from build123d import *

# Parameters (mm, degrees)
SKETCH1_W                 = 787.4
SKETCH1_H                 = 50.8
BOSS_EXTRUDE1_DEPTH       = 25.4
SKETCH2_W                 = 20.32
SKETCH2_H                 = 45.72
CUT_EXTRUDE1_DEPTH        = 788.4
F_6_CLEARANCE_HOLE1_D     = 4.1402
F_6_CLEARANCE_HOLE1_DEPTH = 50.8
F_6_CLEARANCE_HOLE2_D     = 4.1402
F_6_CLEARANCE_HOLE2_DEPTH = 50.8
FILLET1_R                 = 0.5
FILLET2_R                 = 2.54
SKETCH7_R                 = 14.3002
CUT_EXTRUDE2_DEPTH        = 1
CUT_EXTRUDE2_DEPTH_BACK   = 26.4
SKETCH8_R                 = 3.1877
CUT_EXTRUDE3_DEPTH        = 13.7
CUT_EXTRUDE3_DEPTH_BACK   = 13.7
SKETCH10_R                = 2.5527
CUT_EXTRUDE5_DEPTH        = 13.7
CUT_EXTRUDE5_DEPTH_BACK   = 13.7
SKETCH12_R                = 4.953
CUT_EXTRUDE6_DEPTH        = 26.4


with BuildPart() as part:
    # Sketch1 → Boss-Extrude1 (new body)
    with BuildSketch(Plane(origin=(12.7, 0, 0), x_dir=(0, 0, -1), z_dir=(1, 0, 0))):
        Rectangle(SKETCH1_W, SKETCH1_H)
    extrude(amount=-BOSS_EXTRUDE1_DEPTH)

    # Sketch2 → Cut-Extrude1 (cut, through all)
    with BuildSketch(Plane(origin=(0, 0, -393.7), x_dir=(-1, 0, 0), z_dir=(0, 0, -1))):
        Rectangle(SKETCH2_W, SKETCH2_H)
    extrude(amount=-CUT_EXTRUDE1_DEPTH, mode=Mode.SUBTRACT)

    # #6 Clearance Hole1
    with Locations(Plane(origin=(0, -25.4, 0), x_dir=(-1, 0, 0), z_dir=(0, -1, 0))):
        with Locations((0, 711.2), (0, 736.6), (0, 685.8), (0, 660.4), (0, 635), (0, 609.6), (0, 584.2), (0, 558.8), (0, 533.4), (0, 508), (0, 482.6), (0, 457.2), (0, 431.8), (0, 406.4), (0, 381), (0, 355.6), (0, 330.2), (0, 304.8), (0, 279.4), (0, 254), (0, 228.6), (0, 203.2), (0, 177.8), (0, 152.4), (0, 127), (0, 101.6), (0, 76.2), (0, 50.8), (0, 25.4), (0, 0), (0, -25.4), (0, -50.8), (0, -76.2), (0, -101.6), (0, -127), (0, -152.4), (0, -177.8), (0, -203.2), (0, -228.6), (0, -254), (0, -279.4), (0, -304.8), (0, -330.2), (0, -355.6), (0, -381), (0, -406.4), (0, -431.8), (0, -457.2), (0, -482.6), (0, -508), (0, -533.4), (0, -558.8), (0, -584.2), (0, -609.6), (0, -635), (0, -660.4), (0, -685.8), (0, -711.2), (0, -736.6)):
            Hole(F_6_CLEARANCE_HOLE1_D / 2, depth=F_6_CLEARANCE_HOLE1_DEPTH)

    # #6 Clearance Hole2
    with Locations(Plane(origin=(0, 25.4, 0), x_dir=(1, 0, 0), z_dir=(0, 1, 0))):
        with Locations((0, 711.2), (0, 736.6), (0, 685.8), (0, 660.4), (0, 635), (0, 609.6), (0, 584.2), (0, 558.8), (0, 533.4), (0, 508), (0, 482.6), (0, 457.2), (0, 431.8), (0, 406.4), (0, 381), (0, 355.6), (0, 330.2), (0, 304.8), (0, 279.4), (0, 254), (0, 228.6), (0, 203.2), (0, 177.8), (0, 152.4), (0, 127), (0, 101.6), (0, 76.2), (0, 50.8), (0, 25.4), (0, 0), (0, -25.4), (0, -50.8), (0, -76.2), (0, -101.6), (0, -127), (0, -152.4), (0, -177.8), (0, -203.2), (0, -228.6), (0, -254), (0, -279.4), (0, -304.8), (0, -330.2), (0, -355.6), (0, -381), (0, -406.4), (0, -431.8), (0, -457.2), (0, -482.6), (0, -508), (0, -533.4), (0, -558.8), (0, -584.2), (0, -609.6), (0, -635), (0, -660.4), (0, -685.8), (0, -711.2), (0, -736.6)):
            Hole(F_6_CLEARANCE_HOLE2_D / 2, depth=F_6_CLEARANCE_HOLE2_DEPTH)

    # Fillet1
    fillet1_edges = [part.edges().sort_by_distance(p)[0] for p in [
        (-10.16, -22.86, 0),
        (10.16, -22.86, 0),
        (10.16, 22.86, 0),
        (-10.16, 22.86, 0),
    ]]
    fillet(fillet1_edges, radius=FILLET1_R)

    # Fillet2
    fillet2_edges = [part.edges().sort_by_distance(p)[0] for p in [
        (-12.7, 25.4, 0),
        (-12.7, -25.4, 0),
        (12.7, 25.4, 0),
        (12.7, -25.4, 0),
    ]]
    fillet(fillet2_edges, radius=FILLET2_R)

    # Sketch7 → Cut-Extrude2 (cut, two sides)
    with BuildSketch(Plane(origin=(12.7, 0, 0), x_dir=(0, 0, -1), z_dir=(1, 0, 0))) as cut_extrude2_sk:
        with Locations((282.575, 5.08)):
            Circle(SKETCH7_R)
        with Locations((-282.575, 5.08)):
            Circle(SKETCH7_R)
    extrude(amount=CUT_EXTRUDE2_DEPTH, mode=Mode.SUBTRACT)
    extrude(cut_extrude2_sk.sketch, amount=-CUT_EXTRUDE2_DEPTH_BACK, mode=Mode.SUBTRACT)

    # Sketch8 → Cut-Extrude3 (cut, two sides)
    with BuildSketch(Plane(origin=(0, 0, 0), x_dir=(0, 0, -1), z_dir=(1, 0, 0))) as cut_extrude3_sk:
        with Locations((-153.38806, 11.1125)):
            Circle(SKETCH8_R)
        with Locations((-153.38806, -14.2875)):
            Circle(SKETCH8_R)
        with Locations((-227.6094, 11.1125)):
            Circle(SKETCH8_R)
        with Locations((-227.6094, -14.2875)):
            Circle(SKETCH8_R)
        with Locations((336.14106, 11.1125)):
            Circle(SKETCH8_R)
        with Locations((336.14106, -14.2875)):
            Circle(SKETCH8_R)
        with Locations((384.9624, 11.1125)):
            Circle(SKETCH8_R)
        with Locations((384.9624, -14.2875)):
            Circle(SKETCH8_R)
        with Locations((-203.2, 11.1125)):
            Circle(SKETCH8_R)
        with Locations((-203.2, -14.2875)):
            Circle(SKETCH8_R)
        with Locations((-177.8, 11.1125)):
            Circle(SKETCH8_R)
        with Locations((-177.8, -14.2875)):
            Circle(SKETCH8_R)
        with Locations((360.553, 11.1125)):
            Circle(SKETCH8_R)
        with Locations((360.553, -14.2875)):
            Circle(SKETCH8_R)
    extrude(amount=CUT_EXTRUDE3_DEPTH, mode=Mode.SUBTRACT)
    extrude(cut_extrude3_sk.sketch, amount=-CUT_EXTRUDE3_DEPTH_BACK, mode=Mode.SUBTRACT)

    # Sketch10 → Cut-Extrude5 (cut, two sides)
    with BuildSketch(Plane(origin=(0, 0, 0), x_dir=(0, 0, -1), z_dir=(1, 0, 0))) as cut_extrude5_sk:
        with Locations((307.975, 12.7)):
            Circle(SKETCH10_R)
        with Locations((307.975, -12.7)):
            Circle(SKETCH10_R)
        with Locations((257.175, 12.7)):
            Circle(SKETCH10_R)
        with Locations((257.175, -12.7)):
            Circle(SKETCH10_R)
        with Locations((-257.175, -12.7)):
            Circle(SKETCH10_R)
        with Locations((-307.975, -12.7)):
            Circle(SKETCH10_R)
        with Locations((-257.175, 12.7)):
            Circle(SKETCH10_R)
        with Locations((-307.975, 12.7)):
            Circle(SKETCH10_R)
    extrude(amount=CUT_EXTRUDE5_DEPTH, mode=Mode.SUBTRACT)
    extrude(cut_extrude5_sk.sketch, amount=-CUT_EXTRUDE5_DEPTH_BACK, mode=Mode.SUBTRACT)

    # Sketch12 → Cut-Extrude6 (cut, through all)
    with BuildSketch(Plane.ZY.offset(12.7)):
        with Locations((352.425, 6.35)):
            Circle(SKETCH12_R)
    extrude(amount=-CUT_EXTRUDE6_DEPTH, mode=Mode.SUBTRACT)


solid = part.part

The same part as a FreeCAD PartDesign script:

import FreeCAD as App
import Part
import Sketcher

V = App.Vector
Q = App.Units.Quantity


def edges_at(feature, points):
    """Names of the edges that pass closest to the given points."""
    edges = feature.Shape.Edges
    near = lambda p: min(range(len(edges)), key=lambda i: edges[i].distToShape(Part.Vertex(*p))[0])
    return sorted({f"Edge{near(p) + 1}" for p in points})


def add_polygon(sketch, points):
    """Adds a closed chain of lines whose ends are joined by coincident constraints."""
    first, n = sketch.GeometryCount, len(points)
    for a, b in zip(points, points[1:] + points[:1]):
        sketch.addGeometry(Part.LineSegment(App.Vector(*a, 0), App.Vector(*b, 0)), False)
    for i in range(n):
        sketch.addConstraint(Sketcher.Constraint("Coincident", first + i, 2, first + (i + 1) % n, 1))

doc = App.newDocument("Part")
body = doc.addObject("PartDesign::Body", "Body")

# Sketch on YZ plane
sketch1 = body.newObject("Sketcher::SketchObject", "Sketch")
sketch1.AttachmentSupport = (doc.getObject("YZ_Plane"), [""])
sketch1.MapMode = "FlatFace"
sketch1.AttachmentOffset = App.Placement(V(0, 0, 0.5 * 25.4), App.Rotation())
add_polygon(sketch1, [(25, 394), (-25, 394), (-25, -394), (25, -394)])  # lines 0-3
sketch1.addConstraint([
    Sketcher.Constraint("Horizontal", 0),
    Sketcher.Constraint("Vertical", 1),
    Sketcher.Constraint("Horizontal", 2),
    Sketcher.Constraint("Vertical", 3),
    Sketcher.Constraint("Symmetric", 0, 2, 2, 2, -1, 1),
    Sketcher.Constraint("DistanceX", 0, 2, 0, 1, Q("2 in")),
    Sketcher.Constraint("DistanceY", 1, 2, 1, 1, Q("31 in")),
])
pad1 = body.newObject("PartDesign::Pad", "Pad")
pad1.Profile = sketch1
pad1.Length = Q("1 in")
pad1.Reversed = True

# Sketch on XY plane
sketch2 = body.newObject("Sketcher::SketchObject", "Sketch001")
sketch2.AttachmentSupport = (doc.getObject("XY_Plane"), [""])
sketch2.MapMode = "FlatFace"
sketch2.AttachmentOffset = App.Placement(V(0, 0, -15.5 * 25.4), App.Rotation())
add_polygon(sketch2, [(10, 23), (10, -23), (-10, -23), (-10, 23)])  # lines 0-3
sketch2.addConstraint([
    Sketcher.Constraint("Vertical", 0),
    Sketcher.Constraint("Horizontal", 1),
    Sketcher.Constraint("Vertical", 2),
    Sketcher.Constraint("Horizontal", 3),
    Sketcher.Constraint("Symmetric", 0, 2, 2, 2, -1, 1),
    Sketcher.Constraint("DistanceX", 1, 2, 1, 1, Q("0.8 in")),
    Sketcher.Constraint("DistanceY", 0, 2, 0, 1, Q("1.8 in")),
])
pocket1 = body.newObject("PartDesign::Pocket", "Pocket")
pocket1.Profile = sketch2
pocket1.Type = "ThroughAll"
pocket1.Reversed = True

# Sketch on XZ plane
sketch3 = body.newObject("Sketcher::SketchObject", "Sketch002")
sketch3.AttachmentSupport = (doc.getObject("XZ_Plane"), [""])
sketch3.MapMode = "FlatFace"
sketch3.AttachmentOffset = App.Placement(V(0, 0, 1 * 25.4), App.Rotation())
sketch3.addGeometry([
    Part.Circle(V(0, -711.2, 0), V(0, 0, 1), 2.1),  # 0
    Part.Circle(V(0, -736.6, 0), V(0, 0, 1), 2.1),  # 1
    Part.Circle(V(0, -685.8, 0), V(0, 0, 1), 2.1),  # 2
    Part.Circle(V(0, -660.4, 0), V(0, 0, 1), 2.1),  # 3
    Part.Circle(V(0, -635, 0), V(0, 0, 1), 2.1),  # 4
    Part.Circle(V(0, -609.6, 0), V(0, 0, 1), 2.1),  # 5
    Part.Circle(V(0, -584.2, 0), V(0, 0, 1), 2.1),  # 6
    Part.Circle(V(0, -558.8, 0), V(0, 0, 1), 2.1),  # 7
    Part.Circle(V(0, -533.4, 0), V(0, 0, 1), 2.1),  # 8
    Part.Circle(V(0, -508, 0), V(0, 0, 1), 2.1),  # 9
    Part.Circle(V(0, -482.6, 0), V(0, 0, 1), 2.1),  # 10
    Part.Circle(V(0, -457.2, 0), V(0, 0, 1), 2.1),  # 11
    Part.Circle(V(0, -431.8, 0), V(0, 0, 1), 2.1),  # 12
    Part.Circle(V(0, -406.4, 0), V(0, 0, 1), 2.1),  # 13
    Part.Circle(V(0, -381, 0), V(0, 0, 1), 2.1),  # 14
    Part.Circle(V(0, -355.6, 0), V(0, 0, 1), 2.1),  # 15
    Part.Circle(V(0, -330.2, 0), V(0, 0, 1), 2.1),  # 16
    Part.Circle(V(0, -304.8, 0), V(0, 0, 1), 2.1),  # 17
    Part.Circle(V(0, -279.4, 0), V(0, 0, 1), 2.1),  # 18
    Part.Circle(V(0, -254, 0), V(0, 0, 1), 2.1),  # 19
    Part.Circle(V(0, -228.6, 0), V(0, 0, 1), 2.1),  # 20
    Part.Circle(V(0, -203.2, 0), V(0, 0, 1), 2.1),  # 21
    Part.Circle(V(0, -177.8, 0), V(0, 0, 1), 2.1),  # 22
    Part.Circle(V(0, -152.4, 0), V(0, 0, 1), 2.1),  # 23
    Part.Circle(V(0, -127, 0), V(0, 0, 1), 2.1),  # 24
    Part.Circle(V(0, -101.6, 0), V(0, 0, 1), 2.1),  # 25
    Part.Circle(V(0, -76.2, 0), V(0, 0, 1), 2.1),  # 26
    Part.Circle(V(0, -50.8, 0), V(0, 0, 1), 2.1),  # 27
    Part.Circle(V(0, -25.4, 0), V(0, 0, 1), 2.1),  # 28
    Part.Circle(V(0, 0, 0), V(0, 0, 1), 2.1),  # 29
    Part.Circle(V(0, 25.4, 0), V(0, 0, 1), 2.1),  # 30
    Part.Circle(V(0, 50.8, 0), V(0, 0, 1), 2.1),  # 31
    Part.Circle(V(0, 76.2, 0), V(0, 0, 1), 2.1),  # 32
    Part.Circle(V(0, 101.6, 0), V(0, 0, 1), 2.1),  # 33
    Part.Circle(V(0, 127, 0), V(0, 0, 1), 2.1),  # 34
    Part.Circle(V(0, 152.4, 0), V(0, 0, 1), 2.1),  # 35
    Part.Circle(V(0, 177.8, 0), V(0, 0, 1), 2.1),  # 36
    Part.Circle(V(0, 203.2, 0), V(0, 0, 1), 2.1),  # 37
    Part.Circle(V(0, 228.6, 0), V(0, 0, 1), 2.1),  # 38
    Part.Circle(V(0, 254, 0), V(0, 0, 1), 2.1),  # 39
    Part.Circle(V(0, 279.4, 0), V(0, 0, 1), 2.1),  # 40
    Part.Circle(V(0, 304.8, 0), V(0, 0, 1), 2.1),  # 41
    Part.Circle(V(0, 330.2, 0), V(0, 0, 1), 2.1),  # 42
    Part.Circle(V(0, 355.6, 0), V(0, 0, 1), 2.1),  # 43
    Part.Circle(V(0, 381, 0), V(0, 0, 1), 2.1),  # 44
    Part.Circle(V(0, 406.4, 0), V(0, 0, 1), 2.1),  # 45
    Part.Circle(V(0, 431.8, 0), V(0, 0, 1), 2.1),  # 46
    Part.Circle(V(0, 457.2, 0), V(0, 0, 1), 2.1),  # 47
    Part.Circle(V(0, 482.6, 0), V(0, 0, 1), 2.1),  # 48
    Part.Circle(V(0, 508, 0), V(0, 0, 1), 2.1),  # 49
    Part.Circle(V(0, 533.4, 0), V(0, 0, 1), 2.1),  # 50
    Part.Circle(V(0, 558.8, 0), V(0, 0, 1), 2.1),  # 51
    Part.Circle(V(0, 584.2, 0), V(0, 0, 1), 2.1),  # 52
    Part.Circle(V(0, 609.6, 0), V(0, 0, 1), 2.1),  # 53
    Part.Circle(V(0, 635, 0), V(0, 0, 1), 2.1),  # 54
    Part.Circle(V(0, 660.4, 0), V(0, 0, 1), 2.1),  # 55
    Part.Circle(V(0, 685.8, 0), V(0, 0, 1), 2.1),  # 56
    Part.Circle(V(0, 711.2, 0), V(0, 0, 1), 2.1),  # 57
    Part.Circle(V(0, 736.6, 0), V(0, 0, 1), 2.1),  # 58
], False)
sketch3.addConstraint([
    Sketcher.Constraint("Coincident", 29, 3, -1, 1),
    Sketcher.Constraint("Equal", 0, 1),
    Sketcher.Constraint("Equal", 1, 2),
    Sketcher.Constraint("Equal", 2, 3),
    Sketcher.Constraint("Equal", 3, 4),
    Sketcher.Constraint("Equal", 4, 5),
    Sketcher.Constraint("Equal", 5, 6),
    Sketcher.Constraint("Equal", 6, 7),
    Sketcher.Constraint("Equal", 7, 8),
    Sketcher.Constraint("Equal", 8, 9),
    Sketcher.Constraint("Equal", 9, 10),
    Sketcher.Constraint("Equal", 10, 11),
    Sketcher.Constraint("Equal", 11, 12),
    Sketcher.Constraint("Equal", 12, 13),
    Sketcher.Constraint("Equal", 13, 14),
    Sketcher.Constraint("Equal", 14, 15),
    Sketcher.Constraint("Equal", 15, 16),
    Sketcher.Constraint("Equal", 16, 17),
    Sketcher.Constraint("Equal", 17, 18),
    Sketcher.Constraint("Equal", 18, 19),
    Sketcher.Constraint("Equal", 19, 20),
    Sketcher.Constraint("Equal", 20, 21),
    Sketcher.Constraint("Equal", 21, 22),
    Sketcher.Constraint("Equal", 22, 23),
    Sketcher.Constraint("Equal", 23, 24),
    Sketcher.Constraint("Equal", 24, 25),
    Sketcher.Constraint("Equal", 25, 26),
    Sketcher.Constraint("Equal", 26, 27),
    Sketcher.Constraint("Equal", 27, 28),
    Sketcher.Constraint("Equal", 28, 29),
    Sketcher.Constraint("Equal", 29, 30),
    Sketcher.Constraint("Equal", 30, 31),
    Sketcher.Constraint("Equal", 31, 32),
    Sketcher.Constraint("Equal", 32, 33),
    Sketcher.Constraint("Equal", 33, 34),
    Sketcher.Constraint("Equal", 34, 35),
    Sketcher.Constraint("Equal", 35, 36),
    Sketcher.Constraint("Equal", 36, 37),
    Sketcher.Constraint("Equal", 37, 38),
    Sketcher.Constraint("Equal", 38, 39),
    Sketcher.Constraint("Equal", 39, 40),
    Sketcher.Constraint("Equal", 40, 41),
    Sketcher.Constraint("Equal", 41, 42),
    Sketcher.Constraint("Equal", 42, 43),
    Sketcher.Constraint("Equal", 43, 44),
    Sketcher.Constraint("Equal", 44, 45),
    Sketcher.Constraint("Equal", 45, 46),
    Sketcher.Constraint("Equal", 46, 47),
    Sketcher.Constraint("Equal", 47, 48),
    Sketcher.Constraint("Equal", 48, 49),
    Sketcher.Constraint("Equal", 49, 50),
    Sketcher.Constraint("Equal", 50, 51),
    Sketcher.Constraint("Equal", 51, 52),
    Sketcher.Constraint("Equal", 52, 53),
    Sketcher.Constraint("Equal", 53, 54),
    Sketcher.Constraint("Equal", 54, 55),
    Sketcher.Constraint("Equal", 55, 56),
    Sketcher.Constraint("Equal", 56, 57),
    Sketcher.Constraint("Equal", 57, 58),
    Sketcher.Constraint("Symmetric", 28, 3, 30, 3, -1, 1),
    Sketcher.Constraint("Symmetric", 27, 3, 31, 3, -1, 1),
    Sketcher.Constraint("Symmetric", 26, 3, 32, 3, -1, 1),
    Sketcher.Constraint("Symmetric", 25, 3, 33, 3, -1, 1),
    Sketcher.Constraint("Symmetric", 24, 3, 34, 3, -1, 1),
    Sketcher.Constraint("Symmetric", 23, 3, 35, 3, -1, 1),
    Sketcher.Constraint("Symmetric", 22, 3, 36, 3, -1, 1),
    Sketcher.Constraint("Symmetric", 21, 3, 37, 3, -1, 1),
    Sketcher.Constraint("Symmetric", 20, 3, 38, 3, -1, 1),
    Sketcher.Constraint("Symmetric", 19, 3, 39, 3, -1, 1),
    Sketcher.Constraint("Symmetric", 18, 3, 40, 3, -1, 1),
    Sketcher.Constraint("Symmetric", 17, 3, 41, 3, -1, 1),
    Sketcher.Constraint("Symmetric", 16, 3, 42, 3, -1, 1),
    Sketcher.Constraint("Symmetric", 15, 3, 43, 3, -1, 1),
    Sketcher.Constraint("Symmetric", 14, 3, 44, 3, -1, 1),
    Sketcher.Constraint("Symmetric", 13, 3, 45, 3, -1, 1),
    Sketcher.Constraint("Symmetric", 12, 3, 46, 3, -1, 1),
    Sketcher.Constraint("Symmetric", 11, 3, 47, 3, -1, 1),
    Sketcher.Constraint("Symmetric", 10, 3, 48, 3, -1, 1),
    Sketcher.Constraint("Symmetric", 9, 3, 49, 3, -1, 1),
    Sketcher.Constraint("Symmetric", 8, 3, 50, 3, -1, 1),
    Sketcher.Constraint("Symmetric", 7, 3, 51, 3, -1, 1),
    Sketcher.Constraint("Symmetric", 6, 3, 52, 3, -1, 1),
    Sketcher.Constraint("Symmetric", 5, 3, 53, 3, -1, 1),
    Sketcher.Constraint("Symmetric", 4, 3, 54, 3, -1, 1),
    Sketcher.Constraint("Symmetric", 3, 3, 55, 3, -1, 1),
    Sketcher.Constraint("Symmetric", 2, 3, 56, 3, -1, 1),
    Sketcher.Constraint("Symmetric", 0, 3, 57, 3, -1, 1),
    Sketcher.Constraint("Symmetric", 1, 3, 58, 3, -1, 1),
    Sketcher.Constraint("PointOnObject", 0, 3, -2),
    Sketcher.Constraint("PointOnObject", 1, 3, -2),
    Sketcher.Constraint("PointOnObject", 2, 3, -2),
    Sketcher.Constraint("PointOnObject", 3, 3, -2),
    Sketcher.Constraint("PointOnObject", 4, 3, -2),
    Sketcher.Constraint("PointOnObject", 5, 3, -2),
    Sketcher.Constraint("PointOnObject", 6, 3, -2),
    Sketcher.Constraint("PointOnObject", 7, 3, -2),
    Sketcher.Constraint("PointOnObject", 8, 3, -2),
    Sketcher.Constraint("PointOnObject", 9, 3, -2),
    Sketcher.Constraint("PointOnObject", 10, 3, -2),
    Sketcher.Constraint("PointOnObject", 11, 3, -2),
    Sketcher.Constraint("PointOnObject", 12, 3, -2),
    Sketcher.Constraint("PointOnObject", 13, 3, -2),
    Sketcher.Constraint("PointOnObject", 14, 3, -2),
    Sketcher.Constraint("PointOnObject", 15, 3, -2),
    Sketcher.Constraint("PointOnObject", 16, 3, -2),
    Sketcher.Constraint("PointOnObject", 17, 3, -2),
    Sketcher.Constraint("PointOnObject", 18, 3, -2),
    Sketcher.Constraint("PointOnObject", 19, 3, -2),
    Sketcher.Constraint("PointOnObject", 20, 3, -2),
    Sketcher.Constraint("PointOnObject", 21, 3, -2),
    Sketcher.Constraint("PointOnObject", 22, 3, -2),
    Sketcher.Constraint("PointOnObject", 23, 3, -2),
    Sketcher.Constraint("PointOnObject", 24, 3, -2),
    Sketcher.Constraint("PointOnObject", 25, 3, -2),
    Sketcher.Constraint("PointOnObject", 26, 3, -2),
    Sketcher.Constraint("PointOnObject", 27, 3, -2),
    Sketcher.Constraint("PointOnObject", 28, 3, -2),
    Sketcher.Constraint("Diameter", 0, Q("0.163 in")),
    Sketcher.Constraint("DistanceY", 0, 3, -1, 1, Q("28 in")),
    Sketcher.Constraint("DistanceY", 1, 3, -1, 1, Q("29 in")),
    Sketcher.Constraint("DistanceY", 2, 3, -1, 1, Q("27 in")),
    Sketcher.Constraint("DistanceY", 3, 3, -1, 1, Q("26 in")),
    Sketcher.Constraint("DistanceY", 4, 3, -1, 1, Q("25 in")),
    Sketcher.Constraint("DistanceY", 5, 3, -1, 1, Q("24 in")),
    Sketcher.Constraint("DistanceY", 6, 3, -1, 1, Q("23 in")),
    Sketcher.Constraint("DistanceY", 7, 3, -1, 1, Q("22 in")),
    Sketcher.Constraint("DistanceY", 8, 3, -1, 1, Q("21 in")),
    Sketcher.Constraint("DistanceY", 9, 3, -1, 1, Q("20 in")),
    Sketcher.Constraint("DistanceY", 10, 3, -1, 1, Q("19 in")),
    Sketcher.Constraint("DistanceY", 11, 3, -1, 1, Q("18 in")),
    Sketcher.Constraint("DistanceY", 12, 3, -1, 1, Q("17 in")),
    Sketcher.Constraint("DistanceY", 13, 3, -1, 1, Q("16 in")),
    Sketcher.Constraint("DistanceY", 14, 3, -1, 1, Q("15 in")),
    Sketcher.Constraint("DistanceY", 15, 3, -1, 1, Q("14 in")),
    Sketcher.Constraint("DistanceY", 16, 3, -1, 1, Q("13 in")),
    Sketcher.Constraint("DistanceY", 17, 3, -1, 1, Q("12 in")),
    Sketcher.Constraint("DistanceY", 18, 3, -1, 1, Q("11 in")),
    Sketcher.Constraint("DistanceY", 19, 3, -1, 1, Q("10 in")),
    Sketcher.Constraint("DistanceY", 20, 3, -1, 1, Q("9 in")),
    Sketcher.Constraint("DistanceY", 21, 3, -1, 1, Q("8 in")),
    Sketcher.Constraint("DistanceY", 22, 3, -1, 1, Q("7 in")),
    Sketcher.Constraint("DistanceY", 23, 3, -1, 1, Q("6 in")),
    Sketcher.Constraint("DistanceY", 24, 3, -1, 1, Q("5 in")),
    Sketcher.Constraint("DistanceY", 25, 3, -1, 1, Q("4 in")),
    Sketcher.Constraint("DistanceY", 26, 3, -1, 1, Q("3 in")),
    Sketcher.Constraint("DistanceY", 27, 3, -1, 1, Q("2 in")),
    Sketcher.Constraint("DistanceY", 28, 3, -1, 1, Q("1 in")),
])
doc.recompute()
hole = body.newObject("PartDesign::Hole", "Hole")
hole.Profile = sketch3
hole.ThreadType = "None"
hole.Diameter = Q("0.163 in")
hole.DepthType = "Dimension"
hole.Depth = Q("2 in")
hole.DrillPoint = "Flat"

# Sketch on XZ plane
sketch4 = body.newObject("Sketcher::SketchObject", "Sketch003")
sketch4.AttachmentSupport = (doc.getObject("XZ_Plane"), [""])
sketch4.MapMode = "FlatFace"
sketch4.AttachmentOffset = App.Placement(V(0, 0, -1 * 25.4), App.Rotation())
sketch4.addGeometry([
    Part.Circle(V(0, -711.2, 0), V(0, 0, 1), 2.1),  # 0
    Part.Circle(V(0, -736.6, 0), V(0, 0, 1), 2.1),  # 1
    Part.Circle(V(0, -685.8, 0), V(0, 0, 1), 2.1),  # 2
    Part.Circle(V(0, -660.4, 0), V(0, 0, 1), 2.1),  # 3
    Part.Circle(V(0, -635, 0), V(0, 0, 1), 2.1),  # 4
    Part.Circle(V(0, -609.6, 0), V(0, 0, 1), 2.1),  # 5
    Part.Circle(V(0, -584.2, 0), V(0, 0, 1), 2.1),  # 6
    Part.Circle(V(0, -558.8, 0), V(0, 0, 1), 2.1),  # 7
    Part.Circle(V(0, -533.4, 0), V(0, 0, 1), 2.1),  # 8
    Part.Circle(V(0, -508, 0), V(0, 0, 1), 2.1),  # 9
    Part.Circle(V(0, -482.6, 0), V(0, 0, 1), 2.1),  # 10
    Part.Circle(V(0, -457.2, 0), V(0, 0, 1), 2.1),  # 11
    Part.Circle(V(0, -431.8, 0), V(0, 0, 1), 2.1),  # 12
    Part.Circle(V(0, -406.4, 0), V(0, 0, 1), 2.1),  # 13
    Part.Circle(V(0, -381, 0), V(0, 0, 1), 2.1),  # 14
    Part.Circle(V(0, -355.6, 0), V(0, 0, 1), 2.1),  # 15
    Part.Circle(V(0, -330.2, 0), V(0, 0, 1), 2.1),  # 16
    Part.Circle(V(0, -304.8, 0), V(0, 0, 1), 2.1),  # 17
    Part.Circle(V(0, -279.4, 0), V(0, 0, 1), 2.1),  # 18
    Part.Circle(V(0, -254, 0), V(0, 0, 1), 2.1),  # 19
    Part.Circle(V(0, -228.6, 0), V(0, 0, 1), 2.1),  # 20
    Part.Circle(V(0, -203.2, 0), V(0, 0, 1), 2.1),  # 21
    Part.Circle(V(0, -177.8, 0), V(0, 0, 1), 2.1),  # 22
    Part.Circle(V(0, -152.4, 0), V(0, 0, 1), 2.1),  # 23
    Part.Circle(V(0, -127, 0), V(0, 0, 1), 2.1),  # 24
    Part.Circle(V(0, -101.6, 0), V(0, 0, 1), 2.1),  # 25
    Part.Circle(V(0, -76.2, 0), V(0, 0, 1), 2.1),  # 26
    Part.Circle(V(0, -50.8, 0), V(0, 0, 1), 2.1),  # 27
    Part.Circle(V(0, -25.4, 0), V(0, 0, 1), 2.1),  # 28
    Part.Circle(V(0, 0, 0), V(0, 0, 1), 2.1),  # 29
    Part.Circle(V(0, 25.4, 0), V(0, 0, 1), 2.1),  # 30
    Part.Circle(V(0, 50.8, 0), V(0, 0, 1), 2.1),  # 31
    Part.Circle(V(0, 76.2, 0), V(0, 0, 1), 2.1),  # 32
    Part.Circle(V(0, 101.6, 0), V(0, 0, 1), 2.1),  # 33
    Part.Circle(V(0, 127, 0), V(0, 0, 1), 2.1),  # 34
    Part.Circle(V(0, 152.4, 0), V(0, 0, 1), 2.1),  # 35
    Part.Circle(V(0, 177.8, 0), V(0, 0, 1), 2.1),  # 36
    Part.Circle(V(0, 203.2, 0), V(0, 0, 1), 2.1),  # 37
    Part.Circle(V(0, 228.6, 0), V(0, 0, 1), 2.1),  # 38
    Part.Circle(V(0, 254, 0), V(0, 0, 1), 2.1),  # 39
    Part.Circle(V(0, 279.4, 0), V(0, 0, 1), 2.1),  # 40
    Part.Circle(V(0, 304.8, 0), V(0, 0, 1), 2.1),  # 41
    Part.Circle(V(0, 330.2, 0), V(0, 0, 1), 2.1),  # 42
    Part.Circle(V(0, 355.6, 0), V(0, 0, 1), 2.1),  # 43
    Part.Circle(V(0, 381, 0), V(0, 0, 1), 2.1),  # 44
    Part.Circle(V(0, 406.4, 0), V(0, 0, 1), 2.1),  # 45
    Part.Circle(V(0, 431.8, 0), V(0, 0, 1), 2.1),  # 46
    Part.Circle(V(0, 457.2, 0), V(0, 0, 1), 2.1),  # 47
    Part.Circle(V(0, 482.6, 0), V(0, 0, 1), 2.1),  # 48
    Part.Circle(V(0, 508, 0), V(0, 0, 1), 2.1),  # 49
    Part.Circle(V(0, 533.4, 0), V(0, 0, 1), 2.1),  # 50
    Part.Circle(V(0, 558.8, 0), V(0, 0, 1), 2.1),  # 51
    Part.Circle(V(0, 584.2, 0), V(0, 0, 1), 2.1),  # 52
    Part.Circle(V(0, 609.6, 0), V(0, 0, 1), 2.1),  # 53
    Part.Circle(V(0, 635, 0), V(0, 0, 1), 2.1),  # 54
    Part.Circle(V(0, 660.4, 0), V(0, 0, 1), 2.1),  # 55
    Part.Circle(V(0, 685.8, 0), V(0, 0, 1), 2.1),  # 56
    Part.Circle(V(0, 711.2, 0), V(0, 0, 1), 2.1),  # 57
    Part.Circle(V(0, 736.6, 0), V(0, 0, 1), 2.1),  # 58
], False)
sketch4.addConstraint([
    Sketcher.Constraint("Coincident", 29, 3, -1, 1),
    Sketcher.Constraint("Equal", 0, 1),
    Sketcher.Constraint("Equal", 1, 2),
    Sketcher.Constraint("Equal", 2, 3),
    Sketcher.Constraint("Equal", 3, 4),
    Sketcher.Constraint("Equal", 4, 5),
    Sketcher.Constraint("Equal", 5, 6),
    Sketcher.Constraint("Equal", 6, 7),
    Sketcher.Constraint("Equal", 7, 8),
    Sketcher.Constraint("Equal", 8, 9),
    Sketcher.Constraint("Equal", 9, 10),
    Sketcher.Constraint("Equal", 10, 11),
    Sketcher.Constraint("Equal", 11, 12),
    Sketcher.Constraint("Equal", 12, 13),
    Sketcher.Constraint("Equal", 13, 14),
    Sketcher.Constraint("Equal", 14, 15),
    Sketcher.Constraint("Equal", 15, 16),
    Sketcher.Constraint("Equal", 16, 17),
    Sketcher.Constraint("Equal", 17, 18),
    Sketcher.Constraint("Equal", 18, 19),
    Sketcher.Constraint("Equal", 19, 20),
    Sketcher.Constraint("Equal", 20, 21),
    Sketcher.Constraint("Equal", 21, 22),
    Sketcher.Constraint("Equal", 22, 23),
    Sketcher.Constraint("Equal", 23, 24),
    Sketcher.Constraint("Equal", 24, 25),
    Sketcher.Constraint("Equal", 25, 26),
    Sketcher.Constraint("Equal", 26, 27),
    Sketcher.Constraint("Equal", 27, 28),
    Sketcher.Constraint("Equal", 28, 29),
    Sketcher.Constraint("Equal", 29, 30),
    Sketcher.Constraint("Equal", 30, 31),
    Sketcher.Constraint("Equal", 31, 32),
    Sketcher.Constraint("Equal", 32, 33),
    Sketcher.Constraint("Equal", 33, 34),
    Sketcher.Constraint("Equal", 34, 35),
    Sketcher.Constraint("Equal", 35, 36),
    Sketcher.Constraint("Equal", 36, 37),
    Sketcher.Constraint("Equal", 37, 38),
    Sketcher.Constraint("Equal", 38, 39),
    Sketcher.Constraint("Equal", 39, 40),
    Sketcher.Constraint("Equal", 40, 41),
    Sketcher.Constraint("Equal", 41, 42),
    Sketcher.Constraint("Equal", 42, 43),
    Sketcher.Constraint("Equal", 43, 44),
    Sketcher.Constraint("Equal", 44, 45),
    Sketcher.Constraint("Equal", 45, 46),
    Sketcher.Constraint("Equal", 46, 47),
    Sketcher.Constraint("Equal", 47, 48),
    Sketcher.Constraint("Equal", 48, 49),
    Sketcher.Constraint("Equal", 49, 50),
    Sketcher.Constraint("Equal", 50, 51),
    Sketcher.Constraint("Equal", 51, 52),
    Sketcher.Constraint("Equal", 52, 53),
    Sketcher.Constraint("Equal", 53, 54),
    Sketcher.Constraint("Equal", 54, 55),
    Sketcher.Constraint("Equal", 55, 56),
    Sketcher.Constraint("Equal", 56, 57),
    Sketcher.Constraint("Equal", 57, 58),
    Sketcher.Constraint("Symmetric", 28, 3, 30, 3, -1, 1),
    Sketcher.Constraint("Symmetric", 27, 3, 31, 3, -1, 1),
    Sketcher.Constraint("Symmetric", 26, 3, 32, 3, -1, 1),
    Sketcher.Constraint("Symmetric", 25, 3, 33, 3, -1, 1),
    Sketcher.Constraint("Symmetric", 24, 3, 34, 3, -1, 1),
    Sketcher.Constraint("Symmetric", 23, 3, 35, 3, -1, 1),
    Sketcher.Constraint("Symmetric", 22, 3, 36, 3, -1, 1),
    Sketcher.Constraint("Symmetric", 21, 3, 37, 3, -1, 1),
    Sketcher.Constraint("Symmetric", 20, 3, 38, 3, -1, 1),
    Sketcher.Constraint("Symmetric", 19, 3, 39, 3, -1, 1),
    Sketcher.Constraint("Symmetric", 18, 3, 40, 3, -1, 1),
    Sketcher.Constraint("Symmetric", 17, 3, 41, 3, -1, 1),
    Sketcher.Constraint("Symmetric", 16, 3, 42, 3, -1, 1),
    Sketcher.Constraint("Symmetric", 15, 3, 43, 3, -1, 1),
    Sketcher.Constraint("Symmetric", 14, 3, 44, 3, -1, 1),
    Sketcher.Constraint("Symmetric", 13, 3, 45, 3, -1, 1),
    Sketcher.Constraint("Symmetric", 12, 3, 46, 3, -1, 1),
    Sketcher.Constraint("Symmetric", 11, 3, 47, 3, -1, 1),
    Sketcher.Constraint("Symmetric", 10, 3, 48, 3, -1, 1),
    Sketcher.Constraint("Symmetric", 9, 3, 49, 3, -1, 1),
    Sketcher.Constraint("Symmetric", 8, 3, 50, 3, -1, 1),
    Sketcher.Constraint("Symmetric", 7, 3, 51, 3, -1, 1),
    Sketcher.Constraint("Symmetric", 6, 3, 52, 3, -1, 1),
    Sketcher.Constraint("Symmetric", 5, 3, 53, 3, -1, 1),
    Sketcher.Constraint("Symmetric", 4, 3, 54, 3, -1, 1),
    Sketcher.Constraint("Symmetric", 3, 3, 55, 3, -1, 1),
    Sketcher.Constraint("Symmetric", 2, 3, 56, 3, -1, 1),
    Sketcher.Constraint("Symmetric", 0, 3, 57, 3, -1, 1),
    Sketcher.Constraint("Symmetric", 1, 3, 58, 3, -1, 1),
    Sketcher.Constraint("PointOnObject", 0, 3, -2),
    Sketcher.Constraint("PointOnObject", 1, 3, -2),
    Sketcher.Constraint("PointOnObject", 2, 3, -2),
    Sketcher.Constraint("PointOnObject", 3, 3, -2),
    Sketcher.Constraint("PointOnObject", 4, 3, -2),
    Sketcher.Constraint("PointOnObject", 5, 3, -2),
    Sketcher.Constraint("PointOnObject", 6, 3, -2),
    Sketcher.Constraint("PointOnObject", 7, 3, -2),
    Sketcher.Constraint("PointOnObject", 8, 3, -2),
    Sketcher.Constraint("PointOnObject", 9, 3, -2),
    Sketcher.Constraint("PointOnObject", 10, 3, -2),
    Sketcher.Constraint("PointOnObject", 11, 3, -2),
    Sketcher.Constraint("PointOnObject", 12, 3, -2),
    Sketcher.Constraint("PointOnObject", 13, 3, -2),
    Sketcher.Constraint("PointOnObject", 14, 3, -2),
    Sketcher.Constraint("PointOnObject", 15, 3, -2),
    Sketcher.Constraint("PointOnObject", 16, 3, -2),
    Sketcher.Constraint("PointOnObject", 17, 3, -2),
    Sketcher.Constraint("PointOnObject", 18, 3, -2),
    Sketcher.Constraint("PointOnObject", 19, 3, -2),
    Sketcher.Constraint("PointOnObject", 20, 3, -2),
    Sketcher.Constraint("PointOnObject", 21, 3, -2),
    Sketcher.Constraint("PointOnObject", 22, 3, -2),
    Sketcher.Constraint("PointOnObject", 23, 3, -2),
    Sketcher.Constraint("PointOnObject", 24, 3, -2),
    Sketcher.Constraint("PointOnObject", 25, 3, -2),
    Sketcher.Constraint("PointOnObject", 26, 3, -2),
    Sketcher.Constraint("PointOnObject", 27, 3, -2),
    Sketcher.Constraint("PointOnObject", 28, 3, -2),
    Sketcher.Constraint("Diameter", 0, Q("0.163 in")),
    Sketcher.Constraint("DistanceY", 0, 3, -1, 1, Q("28 in")),
    Sketcher.Constraint("DistanceY", 1, 3, -1, 1, Q("29 in")),
    Sketcher.Constraint("DistanceY", 2, 3, -1, 1, Q("27 in")),
    Sketcher.Constraint("DistanceY", 3, 3, -1, 1, Q("26 in")),
    Sketcher.Constraint("DistanceY", 4, 3, -1, 1, Q("25 in")),
    Sketcher.Constraint("DistanceY", 5, 3, -1, 1, Q("24 in")),
    Sketcher.Constraint("DistanceY", 6, 3, -1, 1, Q("23 in")),
    Sketcher.Constraint("DistanceY", 7, 3, -1, 1, Q("22 in")),
    Sketcher.Constraint("DistanceY", 8, 3, -1, 1, Q("21 in")),
    Sketcher.Constraint("DistanceY", 9, 3, -1, 1, Q("20 in")),
    Sketcher.Constraint("DistanceY", 10, 3, -1, 1, Q("19 in")),
    Sketcher.Constraint("DistanceY", 11, 3, -1, 1, Q("18 in")),
    Sketcher.Constraint("DistanceY", 12, 3, -1, 1, Q("17 in")),
    Sketcher.Constraint("DistanceY", 13, 3, -1, 1, Q("16 in")),
    Sketcher.Constraint("DistanceY", 14, 3, -1, 1, Q("15 in")),
    Sketcher.Constraint("DistanceY", 15, 3, -1, 1, Q("14 in")),
    Sketcher.Constraint("DistanceY", 16, 3, -1, 1, Q("13 in")),
    Sketcher.Constraint("DistanceY", 17, 3, -1, 1, Q("12 in")),
    Sketcher.Constraint("DistanceY", 18, 3, -1, 1, Q("11 in")),
    Sketcher.Constraint("DistanceY", 19, 3, -1, 1, Q("10 in")),
    Sketcher.Constraint("DistanceY", 20, 3, -1, 1, Q("9 in")),
    Sketcher.Constraint("DistanceY", 21, 3, -1, 1, Q("8 in")),
    Sketcher.Constraint("DistanceY", 22, 3, -1, 1, Q("7 in")),
    Sketcher.Constraint("DistanceY", 23, 3, -1, 1, Q("6 in")),
    Sketcher.Constraint("DistanceY", 24, 3, -1, 1, Q("5 in")),
    Sketcher.Constraint("DistanceY", 25, 3, -1, 1, Q("4 in")),
    Sketcher.Constraint("DistanceY", 26, 3, -1, 1, Q("3 in")),
    Sketcher.Constraint("DistanceY", 27, 3, -1, 1, Q("2 in")),
    Sketcher.Constraint("DistanceY", 28, 3, -1, 1, Q("1 in")),
])
doc.recompute()
hole2 = body.newObject("PartDesign::Hole", "Hole001")
hole2.Profile = sketch4
hole2.ThreadType = "None"
hole2.Diameter = Q("0.163 in")
hole2.DepthType = "Dimension"
hole2.Depth = Q("2 in")
hole2.DrillPoint = "Flat"
hole2.Reversed = True
doc.recompute()

fillet = body.newObject("PartDesign::Fillet", "Fillet")
fillet.Base = (hole2, edges_at(hole2, [
    (-10.16, -22.86, 0),
    (10.16, -22.86, 0),
    (10.16, 22.86, 0),
    (-10.16, 22.86, 0),
]))
fillet.Radius = 0.5
doc.recompute()

fillet2 = body.newObject("PartDesign::Fillet", "Fillet001")
fillet2.Base = (fillet, edges_at(fillet, [
    (-12.7, 25.4, 0),
    (-12.7, -25.4, 0),
    (12.7, 25.4, 0),
    (12.7, -25.4, 0),
]))
fillet2.Radius = Q("0.1 in")

# Sketch on YZ plane
sketch5 = body.newObject("Sketcher::SketchObject", "Sketch004")
sketch5.AttachmentSupport = (doc.getObject("YZ_Plane"), [""])
sketch5.MapMode = "FlatFace"
sketch5.AttachmentOffset = App.Placement(V(0, 0, 0.5 * 25.4), App.Rotation())
sketch5.addGeometry([
    Part.Circle(V(5, -283, 0), V(0, 0, 1), 14),
    Part.Circle(V(5, 283, 0), V(0, 0, 1), 14),
], False)
sketch5.addConstraint([
    Sketcher.Constraint("Equal", 0, 1),
    Sketcher.Constraint("Symmetric", 0, 3, 1, 3, -1),
    Sketcher.Constraint("Diameter", 0, Q("1.126 in")),
    Sketcher.Constraint("DistanceX", -1, 1, 0, 3, Q("0.2 in")),
    Sketcher.Constraint("DistanceY", 0, 3, 1, 3, Q("22.25 in")),
])
pocket2 = body.newObject("PartDesign::Pocket", "Pocket001")
pocket2.Profile = sketch5
pocket2.Type = "ThroughAll"
pocket2.Midplane = True

# Sketch on YZ plane
sketch6 = body.newObject("Sketcher::SketchObject", "Sketch005")
sketch6.AttachmentSupport = (doc.getObject("YZ_Plane"), [""])
sketch6.MapMode = "FlatFace"
sketch6.addGeometry([
    Part.Circle(V(11.1, 153.4, 0), V(0, 0, 1), 3.2),  # 0
    Part.Circle(V(-14.3, 153.4, 0), V(0, 0, 1), 3.2),  # 1
    Part.Circle(V(11.1, 227.6, 0), V(0, 0, 1), 3.2),  # 2
    Part.Circle(V(-14.3, 227.6, 0), V(0, 0, 1), 3.2),  # 3
    Part.Circle(V(11.1, -336.1, 0), V(0, 0, 1), 3.2),  # 4
    Part.Circle(V(-14.3, -336.1, 0), V(0, 0, 1), 3.2),  # 5
    Part.Circle(V(11.1, -385, 0), V(0, 0, 1), 3.2),  # 6
    Part.Circle(V(-14.3, -385, 0), V(0, 0, 1), 3.2),  # 7
    Part.Circle(V(11.1, 203.2, 0), V(0, 0, 1), 3.2),  # 8
    Part.Circle(V(-14.3, 203.2, 0), V(0, 0, 1), 3.2),  # 9
    Part.Circle(V(11.1, 177.8, 0), V(0, 0, 1), 3.2),  # 10
    Part.Circle(V(-14.3, 177.8, 0), V(0, 0, 1), 3.2),  # 11
    Part.Circle(V(11.1, -360.6, 0), V(0, 0, 1), 3.2),  # 12
    Part.Circle(V(-14.3, -360.6, 0), V(0, 0, 1), 3.2),  # 13
], False)
sketch6.addConstraint([
    Sketcher.Constraint("Equal", 0, 1),
    Sketcher.Constraint("Equal", 1, 2),
    Sketcher.Constraint("Equal", 2, 3),
    Sketcher.Constraint("Equal", 3, 4),
    Sketcher.Constraint("Equal", 4, 5),
    Sketcher.Constraint("Equal", 5, 6),
    Sketcher.Constraint("Equal", 6, 7),
    Sketcher.Constraint("Equal", 7, 8),
    Sketcher.Constraint("Equal", 8, 9),
    Sketcher.Constraint("Equal", 9, 10),
    Sketcher.Constraint("Equal", 10, 11),
    Sketcher.Constraint("Equal", 11, 12),
    Sketcher.Constraint("Equal", 12, 13),
    Sketcher.Constraint("Horizontal", 0, 3, 1, 3),
    Sketcher.Constraint("Horizontal", 2, 3, 3, 3),
    Sketcher.Constraint("Horizontal", 4, 3, 5, 3),
    Sketcher.Constraint("Horizontal", 6, 3, 7, 3),
    Sketcher.Constraint("Horizontal", 8, 3, 9, 3),
    Sketcher.Constraint("Horizontal", 10, 3, 11, 3),
    Sketcher.Constraint("Horizontal", 12, 3, 13, 3),
    Sketcher.Constraint("Vertical", 0, 3, 2, 3),
    Sketcher.Constraint("Vertical", 1, 3, 3, 3),
    Sketcher.Constraint("Vertical", 2, 3, 4, 3),
    Sketcher.Constraint("Vertical", 3, 3, 5, 3),
    Sketcher.Constraint("Vertical", 4, 3, 6, 3),
    Sketcher.Constraint("Vertical", 5, 3, 7, 3),
    Sketcher.Constraint("Vertical", 6, 3, 8, 3),
    Sketcher.Constraint("Vertical", 7, 3, 9, 3),
    Sketcher.Constraint("Vertical", 8, 3, 10, 3),
    Sketcher.Constraint("Vertical", 9, 3, 11, 3),
    Sketcher.Constraint("Vertical", 10, 3, 12, 3),
    Sketcher.Constraint("Vertical", 11, 3, 13, 3),
    Sketcher.Constraint("Diameter", 0, Q("0.251 in")),
    Sketcher.Constraint("DistanceY", -1, 1, 8, 3, Q("8 in")),
    Sketcher.Constraint("DistanceY", -1, 1, 10, 3, Q("7 in")),
    Sketcher.Constraint("DistanceX", 1, 3, 0, 3, Q("1 in")),
    Sketcher.Constraint("DistanceX", -1, 1, 0, 3, Q("0.4375 in")),
    Sketcher.Constraint("DistanceY", -1, 1, 2, 3, Q("8.961 in")),
    Sketcher.Constraint("DistanceY", 6, 3, -1, 1, Q("15.156 in")),
    Sketcher.Constraint("DistanceY", 12, 3, -1, 1, Q("14.195 in")),
    Sketcher.Constraint("DistanceY", -1, 1, 0, 3, Q("6.0389 in")),
    Sketcher.Constraint("DistanceY", 4, 3, -1, 1, Q("13.2339 in")),
])
pocket3 = body.newObject("PartDesign::Pocket", "Pocket002")
pocket3.Profile = sketch6
pocket3.Type = "ThroughAll"
pocket3.Midplane = True

# Sketch on YZ plane
sketch7 = body.newObject("Sketcher::SketchObject", "Sketch006")
sketch7.AttachmentSupport = (doc.getObject("YZ_Plane"), [""])
sketch7.MapMode = "FlatFace"
sketch7.addGeometry([
    Part.Circle(V(12.7, -308, 0), V(0, 0, 1), 2.6),  # 0
    Part.Circle(V(-12.7, -308, 0), V(0, 0, 1), 2.6),  # 1
    Part.Circle(V(12.7, -257.2, 0), V(0, 0, 1), 2.6),  # 2
    Part.Circle(V(-12.7, -257.2, 0), V(0, 0, 1), 2.6),  # 3
    Part.Circle(V(-12.7, 257.2, 0), V(0, 0, 1), 2.6),  # 4
    Part.Circle(V(-12.7, 308, 0), V(0, 0, 1), 2.6),  # 5
    Part.Circle(V(12.7, 257.2, 0), V(0, 0, 1), 2.6),  # 6
    Part.Circle(V(12.7, 308, 0), V(0, 0, 1), 2.6),  # 7
], False)
sketch7.addConstraint([
    Sketcher.Constraint("Equal", 0, 1),
    Sketcher.Constraint("Equal", 1, 2),
    Sketcher.Constraint("Equal", 2, 3),
    Sketcher.Constraint("Equal", 3, 4),
    Sketcher.Constraint("Equal", 4, 5),
    Sketcher.Constraint("Equal", 5, 6),
    Sketcher.Constraint("Equal", 6, 7),
    Sketcher.Constraint("Symmetric", 2, 3, 4, 3, -1, 1),
    Sketcher.Constraint("Symmetric", 0, 3, 5, 3, -1, 1),
    Sketcher.Constraint("Symmetric", 3, 3, 6, 3, -1, 1),
    Sketcher.Constraint("Symmetric", 1, 3, 7, 3, -1, 1),
    Sketcher.Constraint("Symmetric", 0, 3, 1, 3, -2),
    Sketcher.Constraint("Symmetric", 2, 3, 3, 3, -2),
    Sketcher.Constraint("Vertical", 0, 3, 2, 3),
    Sketcher.Constraint("Diameter", 0, Q("0.201 in")),
    Sketcher.Constraint("DistanceX", 1, 3, 0, 3, Q("1 in")),
    Sketcher.Constraint("DistanceY", 0, 3, 2, 3, Q("2 in")),
    Sketcher.Constraint("DistanceY", 3, 3, 4, 3, Q("20.25 in")),
])
pocket4 = body.newObject("PartDesign::Pocket", "Pocket003")
pocket4.Profile = sketch7
pocket4.Type = "ThroughAll"
pocket4.Midplane = True

# Sketch on YZ plane
sketch8 = body.newObject("Sketcher::SketchObject", "Sketch007")
sketch8.AttachmentSupport = (doc.getObject("YZ_Plane"), [""])
sketch8.MapMode = "FlatFace"
sketch8.AttachmentOffset = App.Placement(V(0, 0, -0.5 * 25.4), App.Rotation())
sketch8.addGeometry(Part.Circle(V(6.3, 352.4, 0), V(0, 0, 1), 5), False)
sketch8.addConstraint([
    Sketcher.Constraint("Diameter", 0, Q("0.39 in")),
    Sketcher.Constraint("DistanceX", -1, 1, 0, 3, Q("0.25 in")),
    Sketcher.Constraint("DistanceY", -1, 1, 0, 3, Q("13.875 in")),
])
pocket5 = body.newObject("PartDesign::Pocket", "Pocket004")
pocket5.Profile = sketch8
pocket5.Type = "ThroughAll"
pocket5.Reversed = True

doc.recompute()
